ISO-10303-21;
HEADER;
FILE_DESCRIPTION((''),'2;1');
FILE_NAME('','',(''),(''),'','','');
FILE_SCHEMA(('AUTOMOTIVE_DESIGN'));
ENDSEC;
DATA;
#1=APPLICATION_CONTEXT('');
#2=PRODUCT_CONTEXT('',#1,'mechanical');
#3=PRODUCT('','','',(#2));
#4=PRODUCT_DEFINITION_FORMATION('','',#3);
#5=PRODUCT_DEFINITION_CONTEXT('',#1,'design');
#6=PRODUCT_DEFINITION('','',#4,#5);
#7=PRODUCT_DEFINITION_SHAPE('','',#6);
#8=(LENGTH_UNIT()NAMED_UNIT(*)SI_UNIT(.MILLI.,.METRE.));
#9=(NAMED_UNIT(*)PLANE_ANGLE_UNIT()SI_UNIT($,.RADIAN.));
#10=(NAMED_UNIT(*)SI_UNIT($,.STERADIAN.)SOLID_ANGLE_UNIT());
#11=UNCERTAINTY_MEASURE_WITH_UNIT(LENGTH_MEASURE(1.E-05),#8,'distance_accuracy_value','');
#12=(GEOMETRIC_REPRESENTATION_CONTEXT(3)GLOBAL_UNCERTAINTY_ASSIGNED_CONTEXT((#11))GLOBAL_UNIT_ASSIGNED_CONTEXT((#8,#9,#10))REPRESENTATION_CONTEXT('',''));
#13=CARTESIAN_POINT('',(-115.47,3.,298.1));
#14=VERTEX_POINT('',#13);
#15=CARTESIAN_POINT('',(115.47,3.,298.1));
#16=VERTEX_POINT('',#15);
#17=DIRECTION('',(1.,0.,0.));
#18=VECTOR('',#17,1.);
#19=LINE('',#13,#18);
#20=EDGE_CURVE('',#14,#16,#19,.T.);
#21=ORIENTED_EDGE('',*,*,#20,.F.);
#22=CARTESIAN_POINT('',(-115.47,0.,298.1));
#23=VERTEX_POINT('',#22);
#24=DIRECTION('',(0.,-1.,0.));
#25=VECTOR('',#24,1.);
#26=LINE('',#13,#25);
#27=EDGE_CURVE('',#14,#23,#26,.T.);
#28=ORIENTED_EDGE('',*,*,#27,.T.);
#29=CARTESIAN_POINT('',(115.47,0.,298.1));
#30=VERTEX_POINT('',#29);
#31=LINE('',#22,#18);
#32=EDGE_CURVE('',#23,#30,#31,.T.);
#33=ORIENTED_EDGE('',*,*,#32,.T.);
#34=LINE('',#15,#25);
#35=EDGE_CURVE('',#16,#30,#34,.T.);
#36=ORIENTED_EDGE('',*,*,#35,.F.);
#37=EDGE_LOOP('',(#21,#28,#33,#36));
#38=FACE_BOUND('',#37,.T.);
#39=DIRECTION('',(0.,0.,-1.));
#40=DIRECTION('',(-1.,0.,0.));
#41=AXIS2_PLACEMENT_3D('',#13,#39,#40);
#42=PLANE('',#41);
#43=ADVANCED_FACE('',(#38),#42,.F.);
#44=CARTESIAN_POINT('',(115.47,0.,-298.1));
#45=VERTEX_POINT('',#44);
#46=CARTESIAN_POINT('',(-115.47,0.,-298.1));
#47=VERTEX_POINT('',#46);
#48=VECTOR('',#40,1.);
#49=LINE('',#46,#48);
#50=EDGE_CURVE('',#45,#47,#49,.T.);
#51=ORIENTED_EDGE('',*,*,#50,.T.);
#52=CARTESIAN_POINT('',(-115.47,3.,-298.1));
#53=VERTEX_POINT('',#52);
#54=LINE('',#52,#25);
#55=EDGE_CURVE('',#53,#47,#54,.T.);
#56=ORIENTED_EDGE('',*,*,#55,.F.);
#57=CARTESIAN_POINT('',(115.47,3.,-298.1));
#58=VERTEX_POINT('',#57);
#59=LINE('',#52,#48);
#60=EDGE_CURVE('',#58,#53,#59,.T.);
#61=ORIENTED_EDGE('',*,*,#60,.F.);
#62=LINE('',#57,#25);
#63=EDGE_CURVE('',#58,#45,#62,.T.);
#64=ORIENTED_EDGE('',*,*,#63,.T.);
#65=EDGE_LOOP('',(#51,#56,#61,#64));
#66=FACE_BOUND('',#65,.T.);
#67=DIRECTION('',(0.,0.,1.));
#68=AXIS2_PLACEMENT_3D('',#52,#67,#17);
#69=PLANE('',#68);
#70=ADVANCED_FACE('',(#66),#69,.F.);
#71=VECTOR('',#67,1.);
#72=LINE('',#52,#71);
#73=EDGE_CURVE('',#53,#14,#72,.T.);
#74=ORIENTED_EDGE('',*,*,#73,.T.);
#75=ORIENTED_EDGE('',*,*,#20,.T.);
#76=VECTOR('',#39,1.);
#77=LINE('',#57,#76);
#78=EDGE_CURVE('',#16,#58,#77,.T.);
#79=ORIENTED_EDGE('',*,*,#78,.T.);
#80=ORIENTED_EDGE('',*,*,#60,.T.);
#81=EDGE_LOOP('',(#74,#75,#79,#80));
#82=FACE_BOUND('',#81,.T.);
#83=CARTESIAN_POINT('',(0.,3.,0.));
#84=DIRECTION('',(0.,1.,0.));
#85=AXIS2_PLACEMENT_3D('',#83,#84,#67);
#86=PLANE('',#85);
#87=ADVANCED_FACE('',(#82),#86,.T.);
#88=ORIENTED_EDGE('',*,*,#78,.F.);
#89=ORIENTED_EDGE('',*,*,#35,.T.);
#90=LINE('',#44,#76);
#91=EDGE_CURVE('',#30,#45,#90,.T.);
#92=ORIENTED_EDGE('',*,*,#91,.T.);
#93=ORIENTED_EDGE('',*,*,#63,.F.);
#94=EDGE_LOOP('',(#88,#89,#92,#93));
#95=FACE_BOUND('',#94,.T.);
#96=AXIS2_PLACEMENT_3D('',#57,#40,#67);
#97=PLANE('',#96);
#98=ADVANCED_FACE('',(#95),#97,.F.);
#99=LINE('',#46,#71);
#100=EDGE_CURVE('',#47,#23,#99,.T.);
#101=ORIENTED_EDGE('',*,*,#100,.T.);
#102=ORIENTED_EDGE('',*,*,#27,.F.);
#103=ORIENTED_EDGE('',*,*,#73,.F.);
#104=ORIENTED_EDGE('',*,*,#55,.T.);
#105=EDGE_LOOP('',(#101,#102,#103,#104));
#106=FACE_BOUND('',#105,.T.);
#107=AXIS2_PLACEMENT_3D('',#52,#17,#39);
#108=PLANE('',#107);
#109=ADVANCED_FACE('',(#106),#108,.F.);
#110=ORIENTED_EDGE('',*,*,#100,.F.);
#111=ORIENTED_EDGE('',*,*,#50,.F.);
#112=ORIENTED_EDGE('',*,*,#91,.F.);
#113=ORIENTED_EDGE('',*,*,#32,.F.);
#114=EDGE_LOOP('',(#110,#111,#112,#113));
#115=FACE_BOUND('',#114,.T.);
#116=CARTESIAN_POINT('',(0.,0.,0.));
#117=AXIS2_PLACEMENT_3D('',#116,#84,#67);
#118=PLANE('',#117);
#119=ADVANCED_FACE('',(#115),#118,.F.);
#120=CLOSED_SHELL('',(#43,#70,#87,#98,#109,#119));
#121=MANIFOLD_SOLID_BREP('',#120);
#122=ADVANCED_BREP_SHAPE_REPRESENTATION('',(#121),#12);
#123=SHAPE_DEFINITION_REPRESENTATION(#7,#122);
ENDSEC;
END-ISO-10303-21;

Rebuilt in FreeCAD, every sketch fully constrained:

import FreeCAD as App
import Part
import Sketcher
Q = App.Units.Quantity

doc = App.newDocument("Part")
body = doc.addObject("PartDesign::Body", "Body")

sketch1 = body.newObject("Sketcher::SketchObject", "Sketch")
sketch1.AttachmentSupport = (doc.getObject("XZ_Plane"), [""])
sketch1.MapMode = "FlatFace"
sketch1.addGeometry([
    Part.LineSegment(App.Vector(-115, -298, 0), App.Vector(-115, 298, 0)),
    Part.LineSegment(App.Vector(-115, 298, 0), App.Vector(115, 298, 0)),
    Part.LineSegment(App.Vector(115, 298, 0), App.Vector(115, -298, 0)),
    Part.LineSegment(App.Vector(115, -298, 0), App.Vector(-115, -298, 0)),
], False)
sketch1.addConstraint([
    Sketcher.Constraint("Coincident", 0, 2, 1, 1),
    Sketcher.Constraint("Coincident", 1, 2, 2, 1),
    Sketcher.Constraint("Coincident", 2, 2, 3, 1),
    Sketcher.Constraint("Coincident", 3, 2, 0, 1),
    Sketcher.Constraint("Vertical", 0),
    Sketcher.Constraint("Horizontal", 1),
    Sketcher.Constraint("Vertical", 2),
    Sketcher.Constraint("Horizontal", 3),
    Sketcher.Constraint("Symmetric", 0, 2, 2, 2, -1, 1),
    Sketcher.Constraint("DistanceY", 0, 1, 0, 2, Q("596.2 mm")),
    Sketcher.Constraint("DistanceX", 1, 1, 1, 2, Q("230.94 mm")),
])
pad1 = body.newObject("PartDesign::Pad", "Pad")
pad1.Profile = sketch1
pad1.Length = 3
pad1.Reversed = True

doc.recompute()
